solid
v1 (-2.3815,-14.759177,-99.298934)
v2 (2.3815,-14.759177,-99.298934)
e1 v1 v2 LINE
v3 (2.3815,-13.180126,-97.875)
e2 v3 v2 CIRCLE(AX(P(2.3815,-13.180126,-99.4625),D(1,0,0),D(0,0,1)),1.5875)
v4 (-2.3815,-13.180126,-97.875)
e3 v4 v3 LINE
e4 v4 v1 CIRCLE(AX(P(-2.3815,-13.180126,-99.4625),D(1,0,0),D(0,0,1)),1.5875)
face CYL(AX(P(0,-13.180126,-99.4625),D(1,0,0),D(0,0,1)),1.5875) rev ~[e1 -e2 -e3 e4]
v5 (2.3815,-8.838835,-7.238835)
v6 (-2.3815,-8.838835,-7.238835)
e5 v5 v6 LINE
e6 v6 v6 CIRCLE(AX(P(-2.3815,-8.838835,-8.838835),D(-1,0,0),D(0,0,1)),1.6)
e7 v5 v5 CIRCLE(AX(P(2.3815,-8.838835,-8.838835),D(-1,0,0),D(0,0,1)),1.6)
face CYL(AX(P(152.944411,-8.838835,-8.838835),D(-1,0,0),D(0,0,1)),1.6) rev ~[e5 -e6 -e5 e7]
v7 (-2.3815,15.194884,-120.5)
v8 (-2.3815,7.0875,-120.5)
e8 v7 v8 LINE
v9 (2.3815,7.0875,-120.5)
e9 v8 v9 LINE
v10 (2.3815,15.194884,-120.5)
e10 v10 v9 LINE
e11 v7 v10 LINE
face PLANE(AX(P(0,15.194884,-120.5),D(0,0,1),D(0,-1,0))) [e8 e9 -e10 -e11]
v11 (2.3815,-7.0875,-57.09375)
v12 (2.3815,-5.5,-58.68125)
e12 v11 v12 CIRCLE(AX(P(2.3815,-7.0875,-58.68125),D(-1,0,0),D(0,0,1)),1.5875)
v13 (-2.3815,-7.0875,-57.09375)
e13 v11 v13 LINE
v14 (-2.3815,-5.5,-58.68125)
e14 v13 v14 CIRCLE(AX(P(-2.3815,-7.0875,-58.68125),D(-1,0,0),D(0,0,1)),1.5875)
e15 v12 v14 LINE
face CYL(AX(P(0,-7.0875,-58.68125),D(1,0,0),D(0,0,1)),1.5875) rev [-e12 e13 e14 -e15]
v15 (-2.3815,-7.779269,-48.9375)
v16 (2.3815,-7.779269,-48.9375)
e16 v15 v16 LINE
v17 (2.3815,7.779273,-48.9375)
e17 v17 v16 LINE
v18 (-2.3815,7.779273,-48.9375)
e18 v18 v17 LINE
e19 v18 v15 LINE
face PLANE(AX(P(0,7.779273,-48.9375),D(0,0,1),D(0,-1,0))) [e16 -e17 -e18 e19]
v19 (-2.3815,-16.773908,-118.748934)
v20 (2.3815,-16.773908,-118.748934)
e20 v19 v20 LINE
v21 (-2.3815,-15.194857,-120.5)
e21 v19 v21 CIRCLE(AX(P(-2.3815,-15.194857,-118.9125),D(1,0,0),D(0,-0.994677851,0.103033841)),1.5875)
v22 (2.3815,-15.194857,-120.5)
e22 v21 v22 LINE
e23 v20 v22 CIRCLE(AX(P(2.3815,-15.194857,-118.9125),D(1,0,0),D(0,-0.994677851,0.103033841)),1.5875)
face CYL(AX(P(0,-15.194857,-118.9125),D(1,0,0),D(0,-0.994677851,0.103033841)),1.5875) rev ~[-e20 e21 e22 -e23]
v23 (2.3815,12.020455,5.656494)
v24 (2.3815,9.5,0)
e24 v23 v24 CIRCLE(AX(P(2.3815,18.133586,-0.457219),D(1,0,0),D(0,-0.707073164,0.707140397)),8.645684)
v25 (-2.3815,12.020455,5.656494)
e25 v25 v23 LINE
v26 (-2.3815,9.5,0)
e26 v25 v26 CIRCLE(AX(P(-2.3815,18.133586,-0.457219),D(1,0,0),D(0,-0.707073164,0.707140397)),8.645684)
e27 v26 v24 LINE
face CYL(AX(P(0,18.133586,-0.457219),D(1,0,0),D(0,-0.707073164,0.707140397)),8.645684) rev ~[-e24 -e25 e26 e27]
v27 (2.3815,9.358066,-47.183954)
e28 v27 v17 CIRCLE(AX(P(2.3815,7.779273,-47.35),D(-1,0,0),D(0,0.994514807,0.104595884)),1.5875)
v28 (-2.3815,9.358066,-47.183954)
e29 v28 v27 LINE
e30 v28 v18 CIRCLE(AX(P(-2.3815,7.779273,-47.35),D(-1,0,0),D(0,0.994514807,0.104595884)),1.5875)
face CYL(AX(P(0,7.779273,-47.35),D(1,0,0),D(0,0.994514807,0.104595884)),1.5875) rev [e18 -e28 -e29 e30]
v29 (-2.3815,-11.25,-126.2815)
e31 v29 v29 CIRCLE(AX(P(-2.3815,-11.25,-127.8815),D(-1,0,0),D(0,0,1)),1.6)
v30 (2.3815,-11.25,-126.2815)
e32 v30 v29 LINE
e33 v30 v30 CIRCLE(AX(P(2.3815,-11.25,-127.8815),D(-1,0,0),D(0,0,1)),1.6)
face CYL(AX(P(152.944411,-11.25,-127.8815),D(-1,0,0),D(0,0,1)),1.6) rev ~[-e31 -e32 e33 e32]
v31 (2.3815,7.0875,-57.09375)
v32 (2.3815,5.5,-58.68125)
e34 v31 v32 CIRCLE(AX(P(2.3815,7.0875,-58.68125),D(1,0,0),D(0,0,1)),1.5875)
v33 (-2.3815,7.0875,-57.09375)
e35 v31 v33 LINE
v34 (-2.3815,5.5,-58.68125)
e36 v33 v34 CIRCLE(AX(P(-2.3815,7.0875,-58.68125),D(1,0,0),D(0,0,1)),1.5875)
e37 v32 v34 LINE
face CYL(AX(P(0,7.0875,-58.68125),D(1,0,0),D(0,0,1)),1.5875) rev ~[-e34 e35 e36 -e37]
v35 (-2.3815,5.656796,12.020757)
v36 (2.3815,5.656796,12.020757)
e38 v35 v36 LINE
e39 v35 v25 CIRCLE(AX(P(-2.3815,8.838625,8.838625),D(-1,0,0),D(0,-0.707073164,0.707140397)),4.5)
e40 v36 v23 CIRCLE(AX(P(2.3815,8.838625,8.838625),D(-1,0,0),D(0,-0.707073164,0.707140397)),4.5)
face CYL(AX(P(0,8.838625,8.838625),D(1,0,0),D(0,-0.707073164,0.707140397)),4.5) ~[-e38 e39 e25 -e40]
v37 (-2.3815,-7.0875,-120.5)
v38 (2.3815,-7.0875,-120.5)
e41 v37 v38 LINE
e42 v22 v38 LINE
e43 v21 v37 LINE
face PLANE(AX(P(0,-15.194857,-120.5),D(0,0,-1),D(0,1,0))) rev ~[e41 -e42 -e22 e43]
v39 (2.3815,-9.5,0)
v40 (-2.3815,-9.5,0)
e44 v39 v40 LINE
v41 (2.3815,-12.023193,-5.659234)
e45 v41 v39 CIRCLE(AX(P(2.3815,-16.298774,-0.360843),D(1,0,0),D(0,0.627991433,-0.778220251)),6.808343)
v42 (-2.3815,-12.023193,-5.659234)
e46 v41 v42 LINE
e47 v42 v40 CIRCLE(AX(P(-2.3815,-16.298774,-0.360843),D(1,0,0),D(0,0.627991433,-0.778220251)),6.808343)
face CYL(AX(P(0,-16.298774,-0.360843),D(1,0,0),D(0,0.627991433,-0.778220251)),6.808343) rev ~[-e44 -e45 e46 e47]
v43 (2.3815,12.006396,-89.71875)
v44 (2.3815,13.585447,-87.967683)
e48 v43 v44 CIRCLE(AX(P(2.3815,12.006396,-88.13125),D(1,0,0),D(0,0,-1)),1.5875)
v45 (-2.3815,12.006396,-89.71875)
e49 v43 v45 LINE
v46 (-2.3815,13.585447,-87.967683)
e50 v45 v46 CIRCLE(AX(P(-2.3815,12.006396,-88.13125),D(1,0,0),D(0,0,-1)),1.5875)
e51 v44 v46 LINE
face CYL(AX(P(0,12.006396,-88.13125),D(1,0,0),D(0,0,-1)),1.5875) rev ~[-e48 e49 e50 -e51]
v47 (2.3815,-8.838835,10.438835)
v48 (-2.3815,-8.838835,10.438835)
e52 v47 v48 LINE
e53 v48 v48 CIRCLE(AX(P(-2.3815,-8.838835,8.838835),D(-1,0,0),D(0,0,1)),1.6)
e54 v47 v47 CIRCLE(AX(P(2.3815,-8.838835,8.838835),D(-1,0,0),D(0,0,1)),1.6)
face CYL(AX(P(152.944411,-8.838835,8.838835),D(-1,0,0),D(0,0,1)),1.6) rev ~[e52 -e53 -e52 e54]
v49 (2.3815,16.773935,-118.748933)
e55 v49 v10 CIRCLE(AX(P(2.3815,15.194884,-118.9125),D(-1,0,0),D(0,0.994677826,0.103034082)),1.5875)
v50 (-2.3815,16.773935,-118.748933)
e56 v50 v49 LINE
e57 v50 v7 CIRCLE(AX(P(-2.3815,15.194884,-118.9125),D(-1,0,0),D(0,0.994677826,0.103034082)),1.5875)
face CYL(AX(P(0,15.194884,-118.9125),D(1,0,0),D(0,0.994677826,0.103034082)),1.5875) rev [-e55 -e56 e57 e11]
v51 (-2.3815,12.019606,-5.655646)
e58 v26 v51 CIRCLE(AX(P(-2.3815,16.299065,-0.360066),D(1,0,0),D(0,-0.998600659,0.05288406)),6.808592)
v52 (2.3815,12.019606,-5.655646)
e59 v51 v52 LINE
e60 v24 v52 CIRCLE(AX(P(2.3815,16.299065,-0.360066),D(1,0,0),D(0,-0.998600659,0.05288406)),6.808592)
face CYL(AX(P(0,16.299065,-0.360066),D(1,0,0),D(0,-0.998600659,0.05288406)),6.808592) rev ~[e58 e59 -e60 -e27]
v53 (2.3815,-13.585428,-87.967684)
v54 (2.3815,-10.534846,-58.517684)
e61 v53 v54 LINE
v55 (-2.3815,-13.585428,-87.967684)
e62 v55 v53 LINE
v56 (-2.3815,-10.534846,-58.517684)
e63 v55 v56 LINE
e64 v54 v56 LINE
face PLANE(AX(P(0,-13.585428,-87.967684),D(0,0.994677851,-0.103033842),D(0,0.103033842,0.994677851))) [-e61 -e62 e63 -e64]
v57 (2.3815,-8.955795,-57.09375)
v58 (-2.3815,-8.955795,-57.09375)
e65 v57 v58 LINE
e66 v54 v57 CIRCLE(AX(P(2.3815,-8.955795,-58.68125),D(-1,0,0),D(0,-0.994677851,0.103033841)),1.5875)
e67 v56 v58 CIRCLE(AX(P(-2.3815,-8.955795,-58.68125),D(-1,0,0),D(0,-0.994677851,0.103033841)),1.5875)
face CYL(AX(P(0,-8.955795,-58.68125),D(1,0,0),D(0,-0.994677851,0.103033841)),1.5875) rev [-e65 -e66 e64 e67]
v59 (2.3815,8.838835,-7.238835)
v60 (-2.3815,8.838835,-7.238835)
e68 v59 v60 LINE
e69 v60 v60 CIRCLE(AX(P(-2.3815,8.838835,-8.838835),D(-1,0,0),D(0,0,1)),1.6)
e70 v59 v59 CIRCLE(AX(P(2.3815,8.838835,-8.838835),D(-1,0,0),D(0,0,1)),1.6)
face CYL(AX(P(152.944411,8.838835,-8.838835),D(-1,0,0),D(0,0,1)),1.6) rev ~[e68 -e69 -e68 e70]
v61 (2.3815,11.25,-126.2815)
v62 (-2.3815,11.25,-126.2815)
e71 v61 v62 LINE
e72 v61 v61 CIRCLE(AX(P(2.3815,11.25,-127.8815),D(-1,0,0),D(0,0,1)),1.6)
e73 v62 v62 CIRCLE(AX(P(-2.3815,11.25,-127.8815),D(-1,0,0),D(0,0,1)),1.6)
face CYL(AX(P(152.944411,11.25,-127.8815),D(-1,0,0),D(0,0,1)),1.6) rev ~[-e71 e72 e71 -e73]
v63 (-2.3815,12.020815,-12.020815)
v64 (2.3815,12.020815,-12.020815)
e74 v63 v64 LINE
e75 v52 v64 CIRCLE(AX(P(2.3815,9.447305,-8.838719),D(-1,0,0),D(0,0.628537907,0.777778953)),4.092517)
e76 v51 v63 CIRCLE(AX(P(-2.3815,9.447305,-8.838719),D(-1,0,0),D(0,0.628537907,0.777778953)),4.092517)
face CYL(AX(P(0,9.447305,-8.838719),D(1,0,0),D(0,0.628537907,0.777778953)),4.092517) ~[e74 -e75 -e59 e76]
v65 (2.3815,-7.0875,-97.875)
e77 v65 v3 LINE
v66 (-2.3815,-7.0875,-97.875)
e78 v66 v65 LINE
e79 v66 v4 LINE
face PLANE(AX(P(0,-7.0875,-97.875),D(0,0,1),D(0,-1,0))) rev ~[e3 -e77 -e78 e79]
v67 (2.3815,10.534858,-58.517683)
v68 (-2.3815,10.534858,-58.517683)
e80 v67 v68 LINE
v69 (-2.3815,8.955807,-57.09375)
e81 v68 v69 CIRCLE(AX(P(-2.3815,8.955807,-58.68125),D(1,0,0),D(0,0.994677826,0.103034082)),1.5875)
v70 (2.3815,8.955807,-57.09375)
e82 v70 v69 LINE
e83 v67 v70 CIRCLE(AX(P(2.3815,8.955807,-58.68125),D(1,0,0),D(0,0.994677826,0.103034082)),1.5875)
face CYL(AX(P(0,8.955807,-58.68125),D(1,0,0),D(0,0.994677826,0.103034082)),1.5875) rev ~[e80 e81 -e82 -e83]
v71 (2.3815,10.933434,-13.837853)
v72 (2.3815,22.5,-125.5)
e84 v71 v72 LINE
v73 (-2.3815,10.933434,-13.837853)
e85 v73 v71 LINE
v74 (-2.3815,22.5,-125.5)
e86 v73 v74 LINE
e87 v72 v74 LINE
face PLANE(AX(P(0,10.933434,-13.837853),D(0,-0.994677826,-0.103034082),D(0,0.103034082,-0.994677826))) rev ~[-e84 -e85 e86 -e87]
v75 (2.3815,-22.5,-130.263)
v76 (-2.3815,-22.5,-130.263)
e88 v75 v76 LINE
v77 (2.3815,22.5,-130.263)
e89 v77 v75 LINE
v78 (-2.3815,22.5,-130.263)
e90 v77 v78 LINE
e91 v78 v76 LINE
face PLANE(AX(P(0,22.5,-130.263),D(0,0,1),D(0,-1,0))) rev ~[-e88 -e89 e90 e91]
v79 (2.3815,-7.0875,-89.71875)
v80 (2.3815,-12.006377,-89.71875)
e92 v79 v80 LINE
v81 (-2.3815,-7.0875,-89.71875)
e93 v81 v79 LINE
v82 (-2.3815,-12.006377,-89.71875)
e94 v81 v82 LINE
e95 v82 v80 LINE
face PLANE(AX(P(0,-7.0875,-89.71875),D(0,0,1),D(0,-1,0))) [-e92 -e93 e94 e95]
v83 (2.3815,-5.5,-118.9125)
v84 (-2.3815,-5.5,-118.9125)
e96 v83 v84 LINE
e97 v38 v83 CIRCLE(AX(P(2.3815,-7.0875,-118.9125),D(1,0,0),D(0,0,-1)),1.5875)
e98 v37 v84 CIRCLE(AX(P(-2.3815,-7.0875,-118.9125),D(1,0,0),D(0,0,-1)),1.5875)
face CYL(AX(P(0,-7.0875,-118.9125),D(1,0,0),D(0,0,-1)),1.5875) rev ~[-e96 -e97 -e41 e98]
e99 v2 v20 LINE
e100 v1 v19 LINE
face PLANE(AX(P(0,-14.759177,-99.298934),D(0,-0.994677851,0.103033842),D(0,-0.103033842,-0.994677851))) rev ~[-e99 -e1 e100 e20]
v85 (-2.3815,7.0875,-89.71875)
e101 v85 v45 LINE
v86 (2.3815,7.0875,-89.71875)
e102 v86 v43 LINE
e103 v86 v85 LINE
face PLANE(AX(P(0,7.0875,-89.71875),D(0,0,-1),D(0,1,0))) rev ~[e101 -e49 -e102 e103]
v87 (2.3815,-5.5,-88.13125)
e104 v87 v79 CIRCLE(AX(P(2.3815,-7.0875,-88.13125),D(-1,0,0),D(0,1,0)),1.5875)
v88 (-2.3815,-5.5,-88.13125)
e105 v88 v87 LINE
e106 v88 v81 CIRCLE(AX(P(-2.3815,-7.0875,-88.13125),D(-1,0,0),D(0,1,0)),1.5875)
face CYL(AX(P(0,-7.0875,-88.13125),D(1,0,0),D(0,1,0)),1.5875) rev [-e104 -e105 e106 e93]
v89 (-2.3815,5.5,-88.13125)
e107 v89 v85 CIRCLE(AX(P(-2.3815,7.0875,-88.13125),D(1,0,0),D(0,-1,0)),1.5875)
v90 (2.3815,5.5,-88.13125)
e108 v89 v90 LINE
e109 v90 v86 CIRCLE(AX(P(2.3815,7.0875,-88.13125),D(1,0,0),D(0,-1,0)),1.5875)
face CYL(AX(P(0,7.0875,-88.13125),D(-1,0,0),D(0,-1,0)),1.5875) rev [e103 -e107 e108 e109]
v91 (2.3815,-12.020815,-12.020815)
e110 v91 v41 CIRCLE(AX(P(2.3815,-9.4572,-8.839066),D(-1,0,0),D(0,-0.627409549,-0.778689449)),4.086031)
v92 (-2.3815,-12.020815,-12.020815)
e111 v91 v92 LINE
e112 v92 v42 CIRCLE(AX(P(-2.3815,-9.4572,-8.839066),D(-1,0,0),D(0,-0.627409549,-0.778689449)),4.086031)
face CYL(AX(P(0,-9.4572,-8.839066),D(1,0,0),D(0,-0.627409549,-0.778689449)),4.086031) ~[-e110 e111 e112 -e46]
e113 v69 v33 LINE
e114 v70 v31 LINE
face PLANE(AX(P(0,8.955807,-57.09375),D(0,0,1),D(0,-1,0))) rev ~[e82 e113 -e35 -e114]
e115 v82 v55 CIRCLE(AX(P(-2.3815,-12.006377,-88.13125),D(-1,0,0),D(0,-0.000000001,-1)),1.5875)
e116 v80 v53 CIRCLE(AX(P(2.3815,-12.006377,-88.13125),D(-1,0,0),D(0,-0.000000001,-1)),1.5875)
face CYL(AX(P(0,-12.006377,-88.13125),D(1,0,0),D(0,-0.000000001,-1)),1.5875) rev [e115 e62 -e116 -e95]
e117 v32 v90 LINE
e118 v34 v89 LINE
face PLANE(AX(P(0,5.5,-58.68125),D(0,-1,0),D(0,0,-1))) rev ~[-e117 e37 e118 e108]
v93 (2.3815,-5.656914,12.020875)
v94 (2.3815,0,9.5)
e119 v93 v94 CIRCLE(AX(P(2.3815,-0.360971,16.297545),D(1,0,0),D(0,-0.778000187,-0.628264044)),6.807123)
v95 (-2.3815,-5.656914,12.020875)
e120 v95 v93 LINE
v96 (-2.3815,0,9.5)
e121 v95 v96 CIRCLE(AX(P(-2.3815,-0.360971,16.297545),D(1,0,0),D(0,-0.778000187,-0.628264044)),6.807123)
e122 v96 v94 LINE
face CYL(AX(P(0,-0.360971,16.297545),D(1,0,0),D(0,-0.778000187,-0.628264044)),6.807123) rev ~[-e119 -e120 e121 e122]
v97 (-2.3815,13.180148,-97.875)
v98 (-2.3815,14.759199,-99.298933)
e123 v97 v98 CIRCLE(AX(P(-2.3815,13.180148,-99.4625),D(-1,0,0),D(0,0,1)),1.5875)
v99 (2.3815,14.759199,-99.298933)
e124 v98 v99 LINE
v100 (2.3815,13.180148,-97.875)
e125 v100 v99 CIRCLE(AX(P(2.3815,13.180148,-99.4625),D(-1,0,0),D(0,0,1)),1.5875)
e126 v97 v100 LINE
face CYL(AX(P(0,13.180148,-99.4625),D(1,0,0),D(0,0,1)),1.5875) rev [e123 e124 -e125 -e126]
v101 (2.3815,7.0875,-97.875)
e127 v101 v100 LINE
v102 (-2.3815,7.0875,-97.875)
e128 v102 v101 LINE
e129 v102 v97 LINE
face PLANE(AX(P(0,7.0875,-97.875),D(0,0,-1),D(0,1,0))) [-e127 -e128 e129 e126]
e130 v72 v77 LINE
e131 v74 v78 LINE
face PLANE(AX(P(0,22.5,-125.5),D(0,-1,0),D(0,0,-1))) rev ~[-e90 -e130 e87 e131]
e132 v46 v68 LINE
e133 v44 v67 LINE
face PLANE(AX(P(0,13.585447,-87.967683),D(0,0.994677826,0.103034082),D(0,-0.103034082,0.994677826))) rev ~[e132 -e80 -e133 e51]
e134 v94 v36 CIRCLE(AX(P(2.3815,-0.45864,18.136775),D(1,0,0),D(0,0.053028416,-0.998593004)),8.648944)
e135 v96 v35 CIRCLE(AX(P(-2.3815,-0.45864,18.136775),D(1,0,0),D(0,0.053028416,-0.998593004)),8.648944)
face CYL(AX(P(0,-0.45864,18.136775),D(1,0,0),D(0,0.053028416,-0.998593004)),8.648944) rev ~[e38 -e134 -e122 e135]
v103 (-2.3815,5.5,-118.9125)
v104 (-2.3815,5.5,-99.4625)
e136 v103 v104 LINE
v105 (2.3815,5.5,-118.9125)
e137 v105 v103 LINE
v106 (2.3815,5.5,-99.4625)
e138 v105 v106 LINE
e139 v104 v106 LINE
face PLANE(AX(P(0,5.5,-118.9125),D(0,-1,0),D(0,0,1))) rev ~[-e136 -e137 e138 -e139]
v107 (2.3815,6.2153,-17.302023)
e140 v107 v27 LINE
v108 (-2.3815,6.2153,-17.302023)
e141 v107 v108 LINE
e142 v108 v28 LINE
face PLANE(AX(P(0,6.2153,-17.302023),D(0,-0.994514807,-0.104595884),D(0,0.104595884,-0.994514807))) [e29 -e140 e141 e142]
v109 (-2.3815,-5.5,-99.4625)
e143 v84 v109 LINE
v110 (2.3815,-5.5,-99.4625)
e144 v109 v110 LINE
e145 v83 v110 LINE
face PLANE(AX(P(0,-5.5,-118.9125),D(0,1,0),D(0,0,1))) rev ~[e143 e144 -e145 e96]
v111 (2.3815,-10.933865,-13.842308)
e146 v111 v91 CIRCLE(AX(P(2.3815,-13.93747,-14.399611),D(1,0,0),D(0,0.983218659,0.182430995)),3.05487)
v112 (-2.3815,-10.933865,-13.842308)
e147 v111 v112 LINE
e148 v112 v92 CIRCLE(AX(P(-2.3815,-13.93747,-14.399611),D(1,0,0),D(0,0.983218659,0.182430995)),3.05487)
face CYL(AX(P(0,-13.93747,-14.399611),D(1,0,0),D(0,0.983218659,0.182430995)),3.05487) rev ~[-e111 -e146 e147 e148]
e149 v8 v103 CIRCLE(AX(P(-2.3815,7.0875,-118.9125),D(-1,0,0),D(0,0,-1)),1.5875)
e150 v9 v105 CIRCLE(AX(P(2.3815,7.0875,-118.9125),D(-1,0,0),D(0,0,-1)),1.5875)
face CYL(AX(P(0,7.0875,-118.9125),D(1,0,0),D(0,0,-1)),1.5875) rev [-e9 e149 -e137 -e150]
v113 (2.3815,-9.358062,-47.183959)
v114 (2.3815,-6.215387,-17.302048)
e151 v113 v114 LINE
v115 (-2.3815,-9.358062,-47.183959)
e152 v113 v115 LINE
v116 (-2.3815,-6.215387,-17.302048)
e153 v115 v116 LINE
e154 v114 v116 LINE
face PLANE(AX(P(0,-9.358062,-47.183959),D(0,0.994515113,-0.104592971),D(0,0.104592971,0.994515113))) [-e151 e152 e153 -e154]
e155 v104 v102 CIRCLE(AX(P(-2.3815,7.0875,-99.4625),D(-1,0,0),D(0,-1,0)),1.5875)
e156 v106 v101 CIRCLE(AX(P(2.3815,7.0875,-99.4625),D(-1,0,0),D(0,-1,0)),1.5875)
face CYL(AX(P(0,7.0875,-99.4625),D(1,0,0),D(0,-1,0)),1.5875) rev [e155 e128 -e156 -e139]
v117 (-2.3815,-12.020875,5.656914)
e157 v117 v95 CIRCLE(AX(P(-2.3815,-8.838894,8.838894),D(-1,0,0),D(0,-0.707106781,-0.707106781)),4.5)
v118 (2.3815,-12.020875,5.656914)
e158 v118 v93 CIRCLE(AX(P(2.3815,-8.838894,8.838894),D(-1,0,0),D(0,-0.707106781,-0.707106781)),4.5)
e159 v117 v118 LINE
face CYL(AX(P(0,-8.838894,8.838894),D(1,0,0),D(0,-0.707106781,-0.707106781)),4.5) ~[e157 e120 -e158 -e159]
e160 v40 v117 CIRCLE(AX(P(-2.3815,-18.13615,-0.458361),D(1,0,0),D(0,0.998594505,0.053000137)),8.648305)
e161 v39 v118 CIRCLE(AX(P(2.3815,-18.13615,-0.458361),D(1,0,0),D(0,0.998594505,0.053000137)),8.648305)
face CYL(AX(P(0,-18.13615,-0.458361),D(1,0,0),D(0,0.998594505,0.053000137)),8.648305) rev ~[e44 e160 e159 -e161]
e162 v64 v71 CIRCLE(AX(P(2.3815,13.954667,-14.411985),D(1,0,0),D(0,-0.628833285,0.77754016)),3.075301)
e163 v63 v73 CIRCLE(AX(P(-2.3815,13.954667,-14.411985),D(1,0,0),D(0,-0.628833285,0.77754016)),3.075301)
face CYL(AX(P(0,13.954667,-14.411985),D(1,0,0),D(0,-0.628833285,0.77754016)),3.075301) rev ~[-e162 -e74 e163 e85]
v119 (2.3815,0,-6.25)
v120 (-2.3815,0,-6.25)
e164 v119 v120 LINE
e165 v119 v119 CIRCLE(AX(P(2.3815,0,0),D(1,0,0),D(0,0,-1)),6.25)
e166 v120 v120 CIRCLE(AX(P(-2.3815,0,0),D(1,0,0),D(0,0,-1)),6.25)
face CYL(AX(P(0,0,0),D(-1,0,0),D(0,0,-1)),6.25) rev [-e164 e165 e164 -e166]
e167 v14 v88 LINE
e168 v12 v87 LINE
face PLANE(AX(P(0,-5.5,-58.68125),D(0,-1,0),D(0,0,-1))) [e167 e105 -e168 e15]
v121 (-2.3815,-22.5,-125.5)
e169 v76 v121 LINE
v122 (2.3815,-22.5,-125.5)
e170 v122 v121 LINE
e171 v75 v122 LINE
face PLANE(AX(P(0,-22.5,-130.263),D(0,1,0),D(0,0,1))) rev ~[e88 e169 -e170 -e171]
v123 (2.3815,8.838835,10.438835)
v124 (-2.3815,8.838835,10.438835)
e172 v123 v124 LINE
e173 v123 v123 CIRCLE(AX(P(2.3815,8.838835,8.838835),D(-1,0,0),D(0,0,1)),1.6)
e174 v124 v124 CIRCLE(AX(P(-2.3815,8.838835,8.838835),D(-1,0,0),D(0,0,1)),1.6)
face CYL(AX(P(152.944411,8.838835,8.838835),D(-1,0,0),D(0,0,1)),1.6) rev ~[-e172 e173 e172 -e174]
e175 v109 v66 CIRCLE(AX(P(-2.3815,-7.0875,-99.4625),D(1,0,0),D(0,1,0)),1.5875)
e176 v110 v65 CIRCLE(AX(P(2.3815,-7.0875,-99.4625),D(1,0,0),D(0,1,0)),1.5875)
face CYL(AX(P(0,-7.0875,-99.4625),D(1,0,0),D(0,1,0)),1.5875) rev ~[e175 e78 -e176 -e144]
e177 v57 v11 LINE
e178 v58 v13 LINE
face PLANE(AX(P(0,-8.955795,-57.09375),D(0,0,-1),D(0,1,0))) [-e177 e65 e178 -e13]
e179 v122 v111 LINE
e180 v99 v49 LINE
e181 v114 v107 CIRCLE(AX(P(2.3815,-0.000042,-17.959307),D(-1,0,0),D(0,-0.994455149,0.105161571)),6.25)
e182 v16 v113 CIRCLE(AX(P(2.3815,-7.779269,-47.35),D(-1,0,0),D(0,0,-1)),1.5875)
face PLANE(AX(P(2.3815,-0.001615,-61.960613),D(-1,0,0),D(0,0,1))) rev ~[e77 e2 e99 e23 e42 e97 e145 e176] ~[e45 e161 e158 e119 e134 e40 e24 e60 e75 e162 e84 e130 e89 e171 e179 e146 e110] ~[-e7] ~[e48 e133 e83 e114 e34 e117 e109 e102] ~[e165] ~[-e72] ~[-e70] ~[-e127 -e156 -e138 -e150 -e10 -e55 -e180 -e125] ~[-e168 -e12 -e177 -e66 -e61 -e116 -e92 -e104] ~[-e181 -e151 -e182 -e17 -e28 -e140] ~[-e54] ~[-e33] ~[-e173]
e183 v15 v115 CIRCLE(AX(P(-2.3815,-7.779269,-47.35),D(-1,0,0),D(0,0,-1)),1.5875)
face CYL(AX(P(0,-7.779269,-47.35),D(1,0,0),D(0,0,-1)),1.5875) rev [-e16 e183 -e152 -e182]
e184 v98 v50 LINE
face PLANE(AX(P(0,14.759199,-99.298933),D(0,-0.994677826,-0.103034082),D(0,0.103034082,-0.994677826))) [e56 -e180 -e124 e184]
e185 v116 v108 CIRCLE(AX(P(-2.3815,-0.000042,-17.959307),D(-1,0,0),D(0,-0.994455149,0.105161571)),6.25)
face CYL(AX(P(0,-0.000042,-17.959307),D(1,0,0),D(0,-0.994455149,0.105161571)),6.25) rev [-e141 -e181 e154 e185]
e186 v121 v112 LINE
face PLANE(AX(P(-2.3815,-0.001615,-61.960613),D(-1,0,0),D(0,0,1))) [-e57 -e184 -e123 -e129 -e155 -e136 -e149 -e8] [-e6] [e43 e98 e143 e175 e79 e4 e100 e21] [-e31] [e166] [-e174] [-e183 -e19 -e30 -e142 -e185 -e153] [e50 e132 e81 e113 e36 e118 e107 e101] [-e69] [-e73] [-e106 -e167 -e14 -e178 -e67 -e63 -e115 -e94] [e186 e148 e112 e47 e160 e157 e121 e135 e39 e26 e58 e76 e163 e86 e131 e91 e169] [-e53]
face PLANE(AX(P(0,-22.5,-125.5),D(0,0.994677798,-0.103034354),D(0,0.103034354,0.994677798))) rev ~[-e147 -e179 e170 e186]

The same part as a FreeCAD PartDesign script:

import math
import FreeCAD as App
import Part
import Sketcher

V = App.Vector
Q = App.Units.Quantity

doc = App.newDocument("Part")
params = doc.addObject("Spreadsheet::Sheet", "Params")
for row, (alias, value) in enumerate([
    ("sketch1_diameter", "12.5 mm"),
    ("sketch1_radius", "4.5 mm"),
    ("sketch1_radius2", "4.5 mm"),
    ("sketch1_width", "45 mm"),
    ("sketch1_radius3", "6.25 mm"),
    ("pad1_length", "4.763 mm"),
    ("sketch2_diameter", "3.2 mm"),
    ("hole_diameter", "3.2 mm"),
    ("sketch3_diameter", "3.2 mm"),
    ("hole2_diameter", "3.2 mm"),
], start=1):
    params.set(f"A{row}", alias)
    params.set(f"B{row}", "=" + value)
    params.setAlias(f"B{row}", alias)

body = doc.addObject("PartDesign::Body", "Body")

# Sketch on YZ plane
sketch1 = doc.addObject("Sketcher::SketchObject", "Sketch")
body.addObject(sketch1)
sketch1.AttachmentSupport = (doc.YZ_Plane, [""])
sketch1.MapMode = "FlatFace"
sketch1.addGeometry([
    Part.LineSegment(V(22.5, -125.5, 0), V(10.933434, -13.837853, 0)),  # 0
    Part.ArcOfCircle(Part.Circle(V(13.954667, -14.411985, 0), V(0, 0, 1), 3.075301), math.radians(128.964097), math.radians(169.240247)),  # 1
    Part.ArcOfCircle(Part.Circle(V(9.447305, -8.838719, 0), V(0, 0, 1), 4.092517), math.radians(-51.035903), math.radians(51.057666)),  # 2
    Part.ArcOfCircle(Part.Circle(V(16.299065, -0.360066, 0), V(0, 0, 1), 6.808592), math.radians(176.968552), math.radians(231.057666)),  # 3
    Part.ArcOfCircle(Part.Circle(V(18.133586, -0.457219, 0), V(0, 0, 1), 8.645684), math.radians(134.997276), math.radians(176.968552)),  # 4
    Part.ArcOfCircle(Part.Circle(V(8.838625, 8.838625, 0), V(0, 0, 1), 4.5), math.radians(-45.002724), math.radians(134.997276)),  # 5
    Part.ArcOfCircle(Part.Circle(V(-0.45864, 18.136775, 0), V(0, 0, 1), 8.648944), math.radians(-86.96027), math.radians(-45.002724)),  # 6
    Part.ArcOfCircle(Part.Circle(V(-0.360971, 16.297545, 0), V(0, 0, 1), 6.807123), math.radians(-141.077837), math.radians(-86.96027)),  # 7
    Part.ArcOfCircle(Part.Circle(V(-8.838894, 8.838894, 0), V(0, 0, 1), 4.5), math.radians(45), math.radians(225)),  # 8
    Part.ArcOfCircle(Part.Circle(V(-18.13615, -0.458361, 0), V(0, 0, 1), 8.648305), math.radians(3.038108), math.radians(45)),  # 9
    Part.ArcOfCircle(Part.Circle(V(-16.298774, -0.360843, 0), V(0, 0, 1), 6.808343), math.radians(-51.097911), math.radians(3.038108)),  # 10
    Part.ArcOfCircle(Part.Circle(V(-9.4572, -8.839066, 0), V(0, 0, 1), 4.086031), math.radians(128.902089), math.radians(231.140739)),  # 11
    Part.ArcOfCircle(Part.Circle(V(-13.93747, -14.399611, 0), V(0, 0, 1), 3.05487), math.radians(10.511391), math.radians(51.140739)),  # 12
    Part.LineSegment(V(-10.933865, -13.842308, 0), V(-22.5, -125.5, 0)),  # 13
    Part.LineSegment(V(-22.5, -125.5, 0), V(-22.5, -130.263, 0)),  # 14
    Part.LineSegment(V(-22.5, -130.263, 0), V(22.5, -130.263, 0)),  # 15
    Part.LineSegment(V(22.5, -130.263, 0), V(22.5, -125.5, 0)),  # 16
    Part.ArcOfCircle(Part.Circle(V(-7.0875, -118.9125, 0), V(0, 0, 1), 1.5875), math.radians(-90), math.radians(0)),  # 17
    Part.LineSegment(V(-7.0875, -120.5, 0), V(-15.194857, -120.5, 0)),  # 18
    Part.ArcOfCircle(Part.Circle(V(-15.194857, -118.9125, 0), V(0, 0, 1), 1.5875), math.radians(174.0861), math.radians(270)),  # 19
    Part.LineSegment(V(-16.773908, -118.748934, 0), V(-14.759177, -99.298934, 0)),  # 20
    Part.ArcOfCircle(Part.Circle(V(-13.180126, -99.4625, 0), V(0, 0, 1), 1.5875), math.radians(90), math.radians(174.0861)),  # 21
    Part.LineSegment(V(-13.180126, -97.875, 0), V(-7.0875, -97.875, 0)),  # 22
    Part.ArcOfCircle(Part.Circle(V(-7.0875, -99.4625, 0), V(0, 0, 1), 1.5875), math.radians(0), math.radians(90)),  # 23
    Part.LineSegment(V(-5.5, -99.4625, 0), V(-5.5, -118.9125, 0)),  # 24
    Part.LineSegment(V(-5.5, -58.68125, 0), V(-5.5, -88.13125, 0)),  # 25
    Part.ArcOfCircle(Part.Circle(V(-7.0875, -88.13125, 0), V(0, 0, 1), 1.5875), math.radians(-90), math.radians(0)),  # 26
    Part.LineSegment(V(-7.0875, -89.71875, 0), V(-12.006377, -89.71875, 0)),  # 27
    Part.ArcOfCircle(Part.Circle(V(-12.006377, -88.13125, 0), V(0, 0, 1), 1.5875), math.radians(174.0861), math.radians(270)),  # 28
    Part.LineSegment(V(-13.585428, -87.967684, 0), V(-10.534846, -58.517684, 0)),  # 29
    Part.ArcOfCircle(Part.Circle(V(-8.955795, -58.68125, 0), V(0, 0, 1), 1.5875), math.radians(90), math.radians(174.0861)),  # 30
    Part.LineSegment(V(-8.955795, -57.09375, 0), V(-7.0875, -57.09375, 0)),  # 31
    Part.ArcOfCircle(Part.Circle(V(-7.0875, -58.68125, 0), V(0, 0, 1), 1.5875), math.radians(0), math.radians(90)),  # 32
    Part.LineSegment(V(6.2153, -17.302023, 0), V(9.358066, -47.183954, 0)),  # 33
    Part.ArcOfCircle(Part.Circle(V(7.779273, -47.35, 0), V(0, 0, 1), 1.5875), math.radians(-90), math.radians(6.003884)),  # 34
    Part.LineSegment(V(7.779273, -48.9375, 0), V(-7.779269, -48.9375, 0)),  # 35
    Part.ArcOfCircle(Part.Circle(V(-7.779269, -47.35, 0), V(0, 0, 1), 1.5875), math.radians(173.996284), math.radians(270)),  # 36
    Part.LineSegment(V(-9.358062, -47.183959, 0), V(-6.215387, -17.302048, 0)),  # 37
    Part.ArcOfCircle(Part.Circle(V(-0.000042, -17.959307, 0), V(0, 0, 1), 6.25), math.radians(6.0367), math.radians(173.963525)),  # 38
    Part.Circle(V(0, 0, 0), V(0, 0, 1), 6.25),  # 39
    Part.LineSegment(V(14.759199, -99.298933, 0), V(16.773935, -118.748933, 0)),  # 40
    Part.ArcOfCircle(Part.Circle(V(15.194884, -118.9125, 0), V(0, 0, 1), 1.5875), math.radians(-90), math.radians(5.913913)),  # 41
    Part.LineSegment(V(15.194884, -120.5, 0), V(7.0875, -120.5, 0)),  # 42
    Part.ArcOfCircle(Part.Circle(V(7.0875, -118.9125, 0), V(0, 0, 1), 1.5875), math.radians(180), math.radians(270)),  # 43
    Part.LineSegment(V(5.5, -118.9125, 0), V(5.5, -99.4625, 0)),  # 44
    Part.ArcOfCircle(Part.Circle(V(7.0875, -99.4625, 0), V(0, 0, 1), 1.5875), math.radians(90), math.radians(180)),  # 45
    Part.LineSegment(V(7.0875, -97.875, 0), V(13.180148, -97.875, 0)),  # 46
    Part.ArcOfCircle(Part.Circle(V(13.180148, -99.4625, 0), V(0, 0, 1), 1.5875), math.radians(5.913913), math.radians(90)),  # 47
    Part.ArcOfCircle(Part.Circle(V(8.955807, -58.68125, 0), V(0, 0, 1), 1.5875), math.radians(5.913913), math.radians(90)),  # 48
    Part.LineSegment(V(10.534858, -58.517683, 0), V(13.585447, -87.967683, 0)),  # 49
    Part.ArcOfCircle(Part.Circle(V(12.006396, -88.13125, 0), V(0, 0, 1), 1.5875), math.radians(-90), math.radians(5.913913)),  # 50
    Part.LineSegment(V(12.006396, -89.71875, 0), V(7.0875, -89.71875, 0)),  # 51
    Part.ArcOfCircle(Part.Circle(V(7.0875, -88.13125, 0), V(0, 0, 1), 1.5875), math.radians(180), math.radians(270)),  # 52
    Part.LineSegment(V(5.5, -88.13125, 0), V(5.5, -58.68125, 0)),  # 53
    Part.ArcOfCircle(Part.Circle(V(7.0875, -58.68125, 0), V(0, 0, 1), 1.5875), math.radians(90), math.radians(180)),  # 54
    Part.LineSegment(V(7.0875, -57.09375, 0), V(8.955807, -57.09375, 0)),  # 55
], False)
sketch1.addConstraint([
    Sketcher.Constraint("Coincident", 0, 2, 1, 2),
    Sketcher.Constraint("Coincident", 1, 1, 2, 1),
    Sketcher.Constraint("Coincident", 2, 2, 3, 2),
    Sketcher.Constraint("Coincident", 3, 1, 4, 2),
    Sketcher.Constraint("Coincident", 4, 1, 5, 1),
    Sketcher.Constraint("Coincident", 5, 2, 6, 2),
    Sketcher.Constraint("Coincident", 6, 1, 7, 2),
    Sketcher.Constraint("Coincident", 7, 1, 8, 1),
    Sketcher.Constraint("Coincident", 8, 2, 9, 2),
    Sketcher.Constraint("Coincident", 9, 1, 10, 2),
    Sketcher.Constraint("Coincident", 10, 1, 11, 1),
    Sketcher.Constraint("Coincident", 11, 2, 12, 2),
    Sketcher.Constraint("Coincident", 12, 1, 13, 1),
    Sketcher.Constraint("Coincident", 13, 2, 14, 1),
    Sketcher.Constraint("Coincident", 14, 2, 15, 1),
    Sketcher.Constraint("Coincident", 15, 2, 16, 1),
    Sketcher.Constraint("Coincident", 16, 2, 0, 1),
    Sketcher.Constraint("Coincident", 17, 1, 18, 1),
    Sketcher.Constraint("Coincident", 18, 2, 19, 2),
    Sketcher.Constraint("Coincident", 19, 1, 20, 1),
    Sketcher.Constraint("Coincident", 20, 2, 21, 2),
    Sketcher.Constraint("Coincident", 21, 1, 22, 1),
    Sketcher.Constraint("Coincident", 22, 2, 23, 2),
    Sketcher.Constraint("Coincident", 23, 1, 24, 1),
    Sketcher.Constraint("Coincident", 24, 2, 17, 2),
    Sketcher.Constraint("Coincident", 25, 2, 26, 2),
    Sketcher.Constraint("Coincident", 26, 1, 27, 1),
    Sketcher.Constraint("Coincident", 27, 2, 28, 2),
    Sketcher.Constraint("Coincident", 28, 1, 29, 1),
    Sketcher.Constraint("Coincident", 29, 2, 30, 2),
    Sketcher.Constraint("Coincident", 30, 1, 31, 1),
    Sketcher.Constraint("Coincident", 31, 2, 32, 2),
    Sketcher.Constraint("Coincident", 32, 1, 25, 1),
    Sketcher.Constraint("Coincident", 33, 2, 34, 2),
    Sketcher.Constraint("Coincident", 34, 1, 35, 1),
    Sketcher.Constraint("Coincident", 35, 2, 36, 2),
    Sketcher.Constraint("Coincident", 36, 1, 37, 1),
    Sketcher.Constraint("Coincident", 37, 2, 38, 2),
    Sketcher.Constraint("Coincident", 38, 1, 33, 1),
    Sketcher.Constraint("Coincident", 40, 2, 41, 2),
    Sketcher.Constraint("Coincident", 41, 1, 42, 1),
    Sketcher.Constraint("Coincident", 42, 2, 43, 2),
    Sketcher.Constraint("Coincident", 43, 1, 44, 1),
    Sketcher.Constraint("Coincident", 44, 2, 45, 2),
    Sketcher.Constraint("Coincident", 45, 1, 46, 1),
    Sketcher.Constraint("Coincident", 46, 2, 47, 2),
    Sketcher.Constraint("Coincident", 47, 1, 40, 1),
    Sketcher.Constraint("Coincident", 48, 1, 49, 1),
    Sketcher.Constraint("Coincident", 49, 2, 50, 2),
    Sketcher.Constraint("Coincident", 50, 1, 51, 1),
    Sketcher.Constraint("Coincident", 51, 2, 52, 2),
    Sketcher.Constraint("Coincident", 52, 1, 53, 1),
    Sketcher.Constraint("Coincident", 53, 2, 54, 2),
    Sketcher.Constraint("Coincident", 54, 1, 55, 1),
    Sketcher.Constraint("Coincident", 55, 2, 48, 2),
    Sketcher.Constraint("Vertical", 14),
    Sketcher.Constraint("Horizontal", 15),
    Sketcher.Constraint("Vertical", 16),
    Sketcher.Constraint("Horizontal", 18),
    Sketcher.Constraint("Horizontal", 22),
    Sketcher.Constraint("Vertical", 24),
    Sketcher.Constraint("Vertical", 25),
    Sketcher.Constraint("Horizontal", 27),
    Sketcher.Constraint("Horizontal", 31),
    Sketcher.Constraint("Horizontal", 35),
    Sketcher.Constraint("Horizontal", 42),
    Sketcher.Constraint("Vertical", 44),
    Sketcher.Constraint("Horizontal", 46),
    Sketcher.Constraint("Horizontal", 51),
    Sketcher.Constraint("Vertical", 53),
    Sketcher.Constraint("Horizontal", 55),
    Sketcher.Constraint("Coincident", 39, 3, -1, 1),
    Sketcher.Constraint("PointOnObject", 3, 1, -1),
    Sketcher.Constraint("PointOnObject", 6, 1, -2),
    Sketcher.Constraint("PointOnObject", 9, 1, -1),
    Sketcher.Constraint("Diameter", 39, Q("12.5 mm")),
    Sketcher.Constraint("Radius", 5, Q("4.5 mm")),
    Sketcher.Constraint("Radius", 8, Q("4.5 mm")),
    Sketcher.Constraint("DistanceX", 15, 1, 15, 2, Q("45 mm")),
    Sketcher.Constraint("Radius", 38, Q("6.25 mm")),
    Sketcher.Constraint("DistanceY", 24, 2, 24, 1, Q("19.45 mm")),
    Sketcher.Constraint("DistanceY", 25, 2, 25, 1, Q("29.45 mm")),
    Sketcher.Constraint("DistanceY", 44, 1, 44, 2, Q("19.45 mm")),
    Sketcher.Constraint("DistanceY", 53, 1, 53, 2, Q("29.45 mm")),
    Sketcher.Constraint("DistanceX", -1, 1, 3, 1, Q("9.5 mm")),
    Sketcher.Constraint("DistanceY", -1, 1, 6, 1, Q("9.5 mm")),
    Sketcher.Constraint("DistanceX", 9, 1, -1, 1, Q("9.5 mm")),
    Sketcher.Constraint("DistanceX", 13, 2, -1, 1, Q("22.5 mm")),
    Sketcher.Constraint("DistanceY", 13, 2, -1, 1, Q("125.5 mm")),
    Sketcher.Constraint("DistanceY", 16, 2, -1, 1, Q("125.5 mm")),
    Sketcher.Constraint("DistanceY", 17, 1, -1, 1, Q("120.5 mm")),
    Sketcher.Constraint("DistanceX", 23, 1, -1, 1, Q("5.5 mm")),
    Sketcher.Constraint("DistanceX", 25, 2, -1, 1, Q("5.5 mm")),
    Sketcher.Constraint("DistanceY", 41, 1, -1, 1, Q("120.5 mm")),
    Sketcher.Constraint("DistanceX", -1, 1, 43, 1, Q("5.5 mm")),
    Sketcher.Constraint("DistanceX", -1, 1, 52, 1, Q("5.5 mm")),
    Sketcher.Constraint("Radius", 1, Q("3.075301 mm")),
    Sketcher.Constraint("Radius", 17, Q("1.5875 mm")),
    Sketcher.Constraint("Radius", 19, Q("1.5875 mm")),
    Sketcher.Constraint("Radius", 21, Q("1.5875 mm")),
    Sketcher.Constraint("Radius", 23, Q("1.5875 mm")),
    Sketcher.Constraint("Radius", 26, Q("1.5875 mm")),
    Sketcher.Constraint("Radius", 28, Q("1.5875 mm")),
    Sketcher.Constraint("Radius", 30, Q("1.5875 mm")),
    Sketcher.Constraint("Radius", 32, Q("1.5875 mm")),
    Sketcher.Constraint("Radius", 34, Q("1.5875 mm")),
    Sketcher.Constraint("Radius", 36, Q("1.5875 mm")),
    Sketcher.Constraint("Radius", 41, Q("1.5875 mm")),
    Sketcher.Constraint("Radius", 43, Q("1.5875 mm")),
    Sketcher.Constraint("Radius", 45, Q("1.5875 mm")),
    Sketcher.Constraint("Radius", 47, Q("1.5875 mm")),
    Sketcher.Constraint("Radius", 48, Q("1.5875 mm")),
    Sketcher.Constraint("Radius", 50, Q("1.5875 mm")),
    Sketcher.Constraint("Radius", 52, Q("1.5875 mm")),
    Sketcher.Constraint("Radius", 54, Q("1.5875 mm")),
    Sketcher.Constraint("DistanceY", 14, 2, 14, 1, Q("4.763 mm")),
    Sketcher.Constraint("DistanceY", 34, 3, -1, 1, Q("47.35 mm")),
    Sketcher.Constraint("Radius", 11, Q("4.086031 mm")),
    Sketcher.Constraint("Radius", 12, Q("3.05487 mm")),
    Sketcher.Constraint("DistanceY", 21, 1, -1, 1, Q("97.875 mm")),
    Sketcher.Constraint("DistanceY", 45, 1, -1, 1, Q("97.875 mm")),
    Sketcher.Constraint("Radius", 2, Q("4.092517 mm")),
    Sketcher.Constraint("Radius", 3, Q("6.808592 mm")),
    Sketcher.Constraint("Radius", 4, Q("8.645684 mm")),
    Sketcher.Constraint("Radius", 6, Q("8.648944 mm")),
    Sketcher.Constraint("Radius", 7, Q("6.807123 mm")),
    Sketcher.Constraint("Radius", 9, Q("8.648305 mm")),
    Sketcher.Constraint("Radius", 10, Q("6.808343 mm")),
    Sketcher.Constraint("DistanceX", 46, 1, 46, 2, Q("6.092648 mm")),
    Sketcher.Constraint("DistanceX", 11, 3, -1, 1, Q("9.4572 mm")),
    Sketcher.Constraint("DistanceX", 17, 1, -1, 1, Q("7.0875 mm")),
    Sketcher.Constraint("DistanceX", 22, 2, -1, 1, Q("7.0875 mm")),
    Sketcher.Constraint("DistanceY", 23, 1, -1, 1, Q("99.4625 mm")),
    Sketcher.Constraint("DistanceX", 26, 1, -1, 1, Q("7.0875 mm")),
    Sketcher.Constraint("DistanceX", 31, 2, -1, 1, Q("7.0875 mm")),
    Sketcher.Constraint("DistanceX", -1, 1, 38, 1, Q("6.2153 mm")),
    Sketcher.Constraint("DistanceX", -1, 1, 42, 2, Q("7.0875 mm")),
    Sketcher.Constraint("DistanceY", 43, 1, -1, 1, Q("118.9125 mm")),
    Sketcher.Constraint("DistanceX", -1, 1, 45, 1, Q("7.0875 mm")),
    Sketcher.Constraint("DistanceX", -1, 1, 47, 1, Q("14.759199 mm")),
    Sketcher.Constraint("DistanceX", -1, 1, 51, 2, Q("7.0875 mm")),
    Sketcher.Constraint("DistanceX", -1, 1, 54, 1, Q("7.0875 mm")),
    Sketcher.Constraint("Distance", 0, Q("112.259612 mm")),
    Sketcher.Constraint("Distance", 20, Q("19.55407 mm")),
    Sketcher.Constraint("Distance", 40, Q("19.55407 mm")),
    Sketcher.Constraint("DistanceX", 18, 2, 18, 1, Q("8.107357 mm")),
    Sketcher.Constraint("DistanceX", 22, 1, 22, 2, Q("6.092626 mm")),
    Sketcher.Constraint("DistanceX", 27, 2, 27, 1, Q("4.918877 mm")),
    Sketcher.Constraint("DistanceX", 31, 1, 31, 2, Q("1.868295 mm")),
    Sketcher.Constraint("DistanceX", 35, 2, 35, 1, Q("15.558543 mm")),
    Sketcher.Constraint("DistanceX", 42, 2, 42, 1, Q("8.107384 mm")),
    Sketcher.Constraint("DistanceX", 51, 2, 51, 1, Q("4.918896 mm")),
    Sketcher.Constraint("DistanceX", 55, 1, 55, 2, Q("1.868307 mm")),
    Sketcher.Constraint("DistanceY", 2, 3, -1, 1, Q("8.838719 mm")),
    Sketcher.Constraint("DistanceY", 4, 3, -1, 1, Q("0.457219 mm")),
    Sketcher.Constraint("DistanceX", 7, 3, -1, 1, Q("0.360971 mm")),
    Sketcher.Constraint("DistanceX", 9, 3, -1, 1, Q("18.13615 mm")),
    Sketcher.Constraint("DistanceX", 12, 3, -1, 1, Q("13.93747 mm")),
    Sketcher.Constraint("DistanceY", 12, 3, -1, 1, Q("14.399611 mm")),
    Sketcher.Constraint("DistanceY", 26, 3, -1, 1, Q("88.13125 mm")),
    Sketcher.Constraint("DistanceY", 30, 3, -1, 1, Q("58.68125 mm")),
    Sketcher.Constraint("DistanceX", 36, 3, -1, 1, Q("7.779269 mm")),
    Sketcher.Constraint("DistanceX", -1, 1, 47, 3, Q("13.180148 mm")),
    Sketcher.Constraint("DistanceY", 48, 3, -1, 1, Q("58.68125 mm")),
    Sketcher.Constraint("DistanceY", 50, 3, -1, 1, Q("88.13125 mm")),
    Sketcher.Constraint("DistanceX", 19, 1, -1, 1, Q("16.773908 mm")),
    Sketcher.Constraint("DistanceY", 25, 2, -1, 1, Q("88.13125 mm")),
    Sketcher.Constraint("DistanceX", 28, 1, -1, 1, Q("13.585428 mm")),
    Sketcher.Constraint("DistanceX", 35, 2, -1, 1, Q("7.779269 mm")),
    Sketcher.Constraint("DistanceX", 36, 1, -1, 1, Q("9.358062 mm")),
    Sketcher.Constraint("DistanceY", 52, 1, -1, 1, Q("88.13125 mm")),
    Sketcher.Constraint("Distance", 13, Q("112.255137 mm")),
    Sketcher.Constraint("Distance", 29, Q("29.607576 mm")),
    Sketcher.Constraint("Distance", 33, Q("30.046743 mm")),
    Sketcher.Constraint("Distance", 37, Q("30.046714 mm")),
    Sketcher.Constraint("Distance", 49, Q("29.607577 mm")),
    Sketcher.Constraint("DistanceX", -1, 1, 1, 3, Q("13.954667 mm")),
    Sketcher.Constraint("DistanceY", 1, 3, -1, 1, Q("14.411985 mm")),
    Sketcher.Constraint("DistanceX", -1, 1, 5, 3, Q("8.838625 mm")),
    Sketcher.Constraint("DistanceX", 8, 3, -1, 1, Q("8.838894 mm")),
    Sketcher.Constraint("DistanceX", 19, 3, -1, 1, Q("15.194857 mm")),
    Sketcher.Constraint("DistanceX", 21, 3, -1, 1, Q("13.180126 mm")),
    Sketcher.Constraint("DistanceX", 28, 3, -1, 1, Q("12.006377 mm")),
    Sketcher.Constraint("DistanceX", 30, 3, -1, 1, Q("8.955795 mm")),
    Sketcher.Constraint("DistanceX", -1, 1, 34, 3, Q("7.779273 mm")),
    Sketcher.Constraint("DistanceY", 38, 3, -1, 1, Q("17.959307 mm")),
    Sketcher.Constraint("DistanceX", -1, 1, 41, 3, Q("15.194884 mm")),
    Sketcher.Constraint("DistanceX", -1, 1, 48, 3, Q("8.955807 mm")),
    Sketcher.Constraint("DistanceX", -1, 1, 50, 3, Q("12.006396 mm")),
    Sketcher.Constraint("DistanceX", -1, 1, 1, 1, Q("12.020815 mm")),
    Sketcher.Constraint("DistanceX", -1, 1, 2, 2, Q("12.019606 mm")),
    Sketcher.Constraint("DistanceX", -1, 1, 4, 1, Q("12.020455 mm")),
    Sketcher.Constraint("DistanceX", -1, 1, 5, 2, Q("5.656796 mm")),
    Sketcher.Constraint("DistanceX", 8, 2, -1, 1, Q("12.020875 mm")),
    Sketcher.Constraint("DistanceX", 10, 1, -1, 1, Q("12.023193 mm")),
    Sketcher.Constraint("DistanceX", 11, 2, -1, 1, Q("12.020815 mm")),
    Sketcher.Constraint("DistanceX", -1, 1, 33, 2, Q("9.358066 mm")),
    Sketcher.Constraint("DistanceX", -1, 1, 48, 1, Q("10.534858 mm")),
])
sketch1.setExpression("Constraints[75]", "Params.sketch1_diameter")
sketch1.setExpression("Constraints[76]", "Params.sketch1_radius")
sketch1.setExpression("Constraints[77]", "Params.sketch1_radius2")
sketch1.setExpression("Constraints[78]", "Params.sketch1_width")
sketch1.setExpression("Constraints[79]", "Params.sketch1_radius3")
pad1 = doc.addObject("PartDesign::Pad", "Pad")
body.addObject(pad1)
pad1.Profile = sketch1
pad1.setExpression("Length", "Params.pad1_length")
pad1.Midplane = True

# Sketch on YZ plane
sketch2 = doc.addObject("Sketcher::SketchObject", "Sketch001")
body.addObject(sketch2)
sketch2.AttachmentSupport = (doc.YZ_Plane, [""])
sketch2.MapMode = "FlatFace"
sketch2.AttachmentOffset = App.Placement(V(0, 0, 2.3815), App.Rotation())
sketch2.addGeometry([
    Part.Circle(V(11.2, -127.9, 0), V(0, 0, 1), 1.6),
    Part.Circle(V(-11.2, -127.9, 0), V(0, 0, 1), 1.6),
], False)
sketch2.addConstraint([
    Sketcher.Constraint("Equal", 0, 1),
    Sketcher.Constraint("Symmetric", 0, 3, 1, 3, -2),
    Sketcher.Constraint("Diameter", 0, Q("3.2 mm")),
    Sketcher.Constraint("DistanceX", 1, 3, 0, 3, Q("22.5 mm")),
    Sketcher.Constraint("DistanceY", 0, 3, -1, 1, Q("127.8815 mm")),
])
sketch2.setExpression("Constraints[2]", "Params.sketch2_diameter")
doc.recompute()
hole = doc.addObject("PartDesign::Hole", "Hole")
body.addObject(hole)
hole.Profile = sketch2
hole.ThreadType = "None"
hole.setExpression("Diameter", "Params.hole_diameter")
hole.DepthType = "ThroughAll"

# Sketch on YZ plane
sketch3 = doc.addObject("Sketcher::SketchObject", "Sketch002")
body.addObject(sketch3)
sketch3.AttachmentSupport = (doc.YZ_Plane, [""])
sketch3.MapMode = "FlatFace"
sketch3.AttachmentOffset = App.Placement(V(0, 0, 2.3815), App.Rotation())
sketch3.addGeometry([
    Part.Circle(V(8.8, 8.8, 0), V(0, 0, 1), 1.6),
    Part.Circle(V(8.8, -8.8, 0), V(0, 0, 1), 1.6),
    Part.Circle(V(-8.8, -8.8, 0), V(0, 0, 1), 1.6),
    Part.Circle(V(-8.8, 8.8, 0), V(0, 0, 1), 1.6),
], False)
sketch3.addConstraint([
    Sketcher.Constraint("Equal", 0, 1),
    Sketcher.Constraint("Equal", 1, 2),
    Sketcher.Constraint("Equal", 2, 3),
    Sketcher.Constraint("Symmetric", 0, 3, 2, 3, -1, 1),
    Sketcher.Constraint("Symmetric", 1, 3, 3, 3, -1, 1),
    Sketcher.Constraint("Symmetric", 1, 3, 2, 3, -2),
    Sketcher.Constraint("Diameter", 0, Q("3.2 mm")),
    Sketcher.Constraint("DistanceY", 1, 3, 0, 3, Q("17.67767 mm")),
    Sketcher.Constraint("DistanceX", 2, 3, 1, 3, Q("17.67767 mm")),
])
sketch3.setExpression("Constraints[6]", "Params.sketch3_diameter")
doc.recompute()
hole2 = doc.addObject("PartDesign::Hole", "Hole001")
body.addObject(hole2)
hole2.Profile = sketch3
hole2.ThreadType = "None"
hole2.setExpression("Diameter", "Params.hole2_diameter")
hole2.DepthType = "ThroughAll"

doc.recompute()
